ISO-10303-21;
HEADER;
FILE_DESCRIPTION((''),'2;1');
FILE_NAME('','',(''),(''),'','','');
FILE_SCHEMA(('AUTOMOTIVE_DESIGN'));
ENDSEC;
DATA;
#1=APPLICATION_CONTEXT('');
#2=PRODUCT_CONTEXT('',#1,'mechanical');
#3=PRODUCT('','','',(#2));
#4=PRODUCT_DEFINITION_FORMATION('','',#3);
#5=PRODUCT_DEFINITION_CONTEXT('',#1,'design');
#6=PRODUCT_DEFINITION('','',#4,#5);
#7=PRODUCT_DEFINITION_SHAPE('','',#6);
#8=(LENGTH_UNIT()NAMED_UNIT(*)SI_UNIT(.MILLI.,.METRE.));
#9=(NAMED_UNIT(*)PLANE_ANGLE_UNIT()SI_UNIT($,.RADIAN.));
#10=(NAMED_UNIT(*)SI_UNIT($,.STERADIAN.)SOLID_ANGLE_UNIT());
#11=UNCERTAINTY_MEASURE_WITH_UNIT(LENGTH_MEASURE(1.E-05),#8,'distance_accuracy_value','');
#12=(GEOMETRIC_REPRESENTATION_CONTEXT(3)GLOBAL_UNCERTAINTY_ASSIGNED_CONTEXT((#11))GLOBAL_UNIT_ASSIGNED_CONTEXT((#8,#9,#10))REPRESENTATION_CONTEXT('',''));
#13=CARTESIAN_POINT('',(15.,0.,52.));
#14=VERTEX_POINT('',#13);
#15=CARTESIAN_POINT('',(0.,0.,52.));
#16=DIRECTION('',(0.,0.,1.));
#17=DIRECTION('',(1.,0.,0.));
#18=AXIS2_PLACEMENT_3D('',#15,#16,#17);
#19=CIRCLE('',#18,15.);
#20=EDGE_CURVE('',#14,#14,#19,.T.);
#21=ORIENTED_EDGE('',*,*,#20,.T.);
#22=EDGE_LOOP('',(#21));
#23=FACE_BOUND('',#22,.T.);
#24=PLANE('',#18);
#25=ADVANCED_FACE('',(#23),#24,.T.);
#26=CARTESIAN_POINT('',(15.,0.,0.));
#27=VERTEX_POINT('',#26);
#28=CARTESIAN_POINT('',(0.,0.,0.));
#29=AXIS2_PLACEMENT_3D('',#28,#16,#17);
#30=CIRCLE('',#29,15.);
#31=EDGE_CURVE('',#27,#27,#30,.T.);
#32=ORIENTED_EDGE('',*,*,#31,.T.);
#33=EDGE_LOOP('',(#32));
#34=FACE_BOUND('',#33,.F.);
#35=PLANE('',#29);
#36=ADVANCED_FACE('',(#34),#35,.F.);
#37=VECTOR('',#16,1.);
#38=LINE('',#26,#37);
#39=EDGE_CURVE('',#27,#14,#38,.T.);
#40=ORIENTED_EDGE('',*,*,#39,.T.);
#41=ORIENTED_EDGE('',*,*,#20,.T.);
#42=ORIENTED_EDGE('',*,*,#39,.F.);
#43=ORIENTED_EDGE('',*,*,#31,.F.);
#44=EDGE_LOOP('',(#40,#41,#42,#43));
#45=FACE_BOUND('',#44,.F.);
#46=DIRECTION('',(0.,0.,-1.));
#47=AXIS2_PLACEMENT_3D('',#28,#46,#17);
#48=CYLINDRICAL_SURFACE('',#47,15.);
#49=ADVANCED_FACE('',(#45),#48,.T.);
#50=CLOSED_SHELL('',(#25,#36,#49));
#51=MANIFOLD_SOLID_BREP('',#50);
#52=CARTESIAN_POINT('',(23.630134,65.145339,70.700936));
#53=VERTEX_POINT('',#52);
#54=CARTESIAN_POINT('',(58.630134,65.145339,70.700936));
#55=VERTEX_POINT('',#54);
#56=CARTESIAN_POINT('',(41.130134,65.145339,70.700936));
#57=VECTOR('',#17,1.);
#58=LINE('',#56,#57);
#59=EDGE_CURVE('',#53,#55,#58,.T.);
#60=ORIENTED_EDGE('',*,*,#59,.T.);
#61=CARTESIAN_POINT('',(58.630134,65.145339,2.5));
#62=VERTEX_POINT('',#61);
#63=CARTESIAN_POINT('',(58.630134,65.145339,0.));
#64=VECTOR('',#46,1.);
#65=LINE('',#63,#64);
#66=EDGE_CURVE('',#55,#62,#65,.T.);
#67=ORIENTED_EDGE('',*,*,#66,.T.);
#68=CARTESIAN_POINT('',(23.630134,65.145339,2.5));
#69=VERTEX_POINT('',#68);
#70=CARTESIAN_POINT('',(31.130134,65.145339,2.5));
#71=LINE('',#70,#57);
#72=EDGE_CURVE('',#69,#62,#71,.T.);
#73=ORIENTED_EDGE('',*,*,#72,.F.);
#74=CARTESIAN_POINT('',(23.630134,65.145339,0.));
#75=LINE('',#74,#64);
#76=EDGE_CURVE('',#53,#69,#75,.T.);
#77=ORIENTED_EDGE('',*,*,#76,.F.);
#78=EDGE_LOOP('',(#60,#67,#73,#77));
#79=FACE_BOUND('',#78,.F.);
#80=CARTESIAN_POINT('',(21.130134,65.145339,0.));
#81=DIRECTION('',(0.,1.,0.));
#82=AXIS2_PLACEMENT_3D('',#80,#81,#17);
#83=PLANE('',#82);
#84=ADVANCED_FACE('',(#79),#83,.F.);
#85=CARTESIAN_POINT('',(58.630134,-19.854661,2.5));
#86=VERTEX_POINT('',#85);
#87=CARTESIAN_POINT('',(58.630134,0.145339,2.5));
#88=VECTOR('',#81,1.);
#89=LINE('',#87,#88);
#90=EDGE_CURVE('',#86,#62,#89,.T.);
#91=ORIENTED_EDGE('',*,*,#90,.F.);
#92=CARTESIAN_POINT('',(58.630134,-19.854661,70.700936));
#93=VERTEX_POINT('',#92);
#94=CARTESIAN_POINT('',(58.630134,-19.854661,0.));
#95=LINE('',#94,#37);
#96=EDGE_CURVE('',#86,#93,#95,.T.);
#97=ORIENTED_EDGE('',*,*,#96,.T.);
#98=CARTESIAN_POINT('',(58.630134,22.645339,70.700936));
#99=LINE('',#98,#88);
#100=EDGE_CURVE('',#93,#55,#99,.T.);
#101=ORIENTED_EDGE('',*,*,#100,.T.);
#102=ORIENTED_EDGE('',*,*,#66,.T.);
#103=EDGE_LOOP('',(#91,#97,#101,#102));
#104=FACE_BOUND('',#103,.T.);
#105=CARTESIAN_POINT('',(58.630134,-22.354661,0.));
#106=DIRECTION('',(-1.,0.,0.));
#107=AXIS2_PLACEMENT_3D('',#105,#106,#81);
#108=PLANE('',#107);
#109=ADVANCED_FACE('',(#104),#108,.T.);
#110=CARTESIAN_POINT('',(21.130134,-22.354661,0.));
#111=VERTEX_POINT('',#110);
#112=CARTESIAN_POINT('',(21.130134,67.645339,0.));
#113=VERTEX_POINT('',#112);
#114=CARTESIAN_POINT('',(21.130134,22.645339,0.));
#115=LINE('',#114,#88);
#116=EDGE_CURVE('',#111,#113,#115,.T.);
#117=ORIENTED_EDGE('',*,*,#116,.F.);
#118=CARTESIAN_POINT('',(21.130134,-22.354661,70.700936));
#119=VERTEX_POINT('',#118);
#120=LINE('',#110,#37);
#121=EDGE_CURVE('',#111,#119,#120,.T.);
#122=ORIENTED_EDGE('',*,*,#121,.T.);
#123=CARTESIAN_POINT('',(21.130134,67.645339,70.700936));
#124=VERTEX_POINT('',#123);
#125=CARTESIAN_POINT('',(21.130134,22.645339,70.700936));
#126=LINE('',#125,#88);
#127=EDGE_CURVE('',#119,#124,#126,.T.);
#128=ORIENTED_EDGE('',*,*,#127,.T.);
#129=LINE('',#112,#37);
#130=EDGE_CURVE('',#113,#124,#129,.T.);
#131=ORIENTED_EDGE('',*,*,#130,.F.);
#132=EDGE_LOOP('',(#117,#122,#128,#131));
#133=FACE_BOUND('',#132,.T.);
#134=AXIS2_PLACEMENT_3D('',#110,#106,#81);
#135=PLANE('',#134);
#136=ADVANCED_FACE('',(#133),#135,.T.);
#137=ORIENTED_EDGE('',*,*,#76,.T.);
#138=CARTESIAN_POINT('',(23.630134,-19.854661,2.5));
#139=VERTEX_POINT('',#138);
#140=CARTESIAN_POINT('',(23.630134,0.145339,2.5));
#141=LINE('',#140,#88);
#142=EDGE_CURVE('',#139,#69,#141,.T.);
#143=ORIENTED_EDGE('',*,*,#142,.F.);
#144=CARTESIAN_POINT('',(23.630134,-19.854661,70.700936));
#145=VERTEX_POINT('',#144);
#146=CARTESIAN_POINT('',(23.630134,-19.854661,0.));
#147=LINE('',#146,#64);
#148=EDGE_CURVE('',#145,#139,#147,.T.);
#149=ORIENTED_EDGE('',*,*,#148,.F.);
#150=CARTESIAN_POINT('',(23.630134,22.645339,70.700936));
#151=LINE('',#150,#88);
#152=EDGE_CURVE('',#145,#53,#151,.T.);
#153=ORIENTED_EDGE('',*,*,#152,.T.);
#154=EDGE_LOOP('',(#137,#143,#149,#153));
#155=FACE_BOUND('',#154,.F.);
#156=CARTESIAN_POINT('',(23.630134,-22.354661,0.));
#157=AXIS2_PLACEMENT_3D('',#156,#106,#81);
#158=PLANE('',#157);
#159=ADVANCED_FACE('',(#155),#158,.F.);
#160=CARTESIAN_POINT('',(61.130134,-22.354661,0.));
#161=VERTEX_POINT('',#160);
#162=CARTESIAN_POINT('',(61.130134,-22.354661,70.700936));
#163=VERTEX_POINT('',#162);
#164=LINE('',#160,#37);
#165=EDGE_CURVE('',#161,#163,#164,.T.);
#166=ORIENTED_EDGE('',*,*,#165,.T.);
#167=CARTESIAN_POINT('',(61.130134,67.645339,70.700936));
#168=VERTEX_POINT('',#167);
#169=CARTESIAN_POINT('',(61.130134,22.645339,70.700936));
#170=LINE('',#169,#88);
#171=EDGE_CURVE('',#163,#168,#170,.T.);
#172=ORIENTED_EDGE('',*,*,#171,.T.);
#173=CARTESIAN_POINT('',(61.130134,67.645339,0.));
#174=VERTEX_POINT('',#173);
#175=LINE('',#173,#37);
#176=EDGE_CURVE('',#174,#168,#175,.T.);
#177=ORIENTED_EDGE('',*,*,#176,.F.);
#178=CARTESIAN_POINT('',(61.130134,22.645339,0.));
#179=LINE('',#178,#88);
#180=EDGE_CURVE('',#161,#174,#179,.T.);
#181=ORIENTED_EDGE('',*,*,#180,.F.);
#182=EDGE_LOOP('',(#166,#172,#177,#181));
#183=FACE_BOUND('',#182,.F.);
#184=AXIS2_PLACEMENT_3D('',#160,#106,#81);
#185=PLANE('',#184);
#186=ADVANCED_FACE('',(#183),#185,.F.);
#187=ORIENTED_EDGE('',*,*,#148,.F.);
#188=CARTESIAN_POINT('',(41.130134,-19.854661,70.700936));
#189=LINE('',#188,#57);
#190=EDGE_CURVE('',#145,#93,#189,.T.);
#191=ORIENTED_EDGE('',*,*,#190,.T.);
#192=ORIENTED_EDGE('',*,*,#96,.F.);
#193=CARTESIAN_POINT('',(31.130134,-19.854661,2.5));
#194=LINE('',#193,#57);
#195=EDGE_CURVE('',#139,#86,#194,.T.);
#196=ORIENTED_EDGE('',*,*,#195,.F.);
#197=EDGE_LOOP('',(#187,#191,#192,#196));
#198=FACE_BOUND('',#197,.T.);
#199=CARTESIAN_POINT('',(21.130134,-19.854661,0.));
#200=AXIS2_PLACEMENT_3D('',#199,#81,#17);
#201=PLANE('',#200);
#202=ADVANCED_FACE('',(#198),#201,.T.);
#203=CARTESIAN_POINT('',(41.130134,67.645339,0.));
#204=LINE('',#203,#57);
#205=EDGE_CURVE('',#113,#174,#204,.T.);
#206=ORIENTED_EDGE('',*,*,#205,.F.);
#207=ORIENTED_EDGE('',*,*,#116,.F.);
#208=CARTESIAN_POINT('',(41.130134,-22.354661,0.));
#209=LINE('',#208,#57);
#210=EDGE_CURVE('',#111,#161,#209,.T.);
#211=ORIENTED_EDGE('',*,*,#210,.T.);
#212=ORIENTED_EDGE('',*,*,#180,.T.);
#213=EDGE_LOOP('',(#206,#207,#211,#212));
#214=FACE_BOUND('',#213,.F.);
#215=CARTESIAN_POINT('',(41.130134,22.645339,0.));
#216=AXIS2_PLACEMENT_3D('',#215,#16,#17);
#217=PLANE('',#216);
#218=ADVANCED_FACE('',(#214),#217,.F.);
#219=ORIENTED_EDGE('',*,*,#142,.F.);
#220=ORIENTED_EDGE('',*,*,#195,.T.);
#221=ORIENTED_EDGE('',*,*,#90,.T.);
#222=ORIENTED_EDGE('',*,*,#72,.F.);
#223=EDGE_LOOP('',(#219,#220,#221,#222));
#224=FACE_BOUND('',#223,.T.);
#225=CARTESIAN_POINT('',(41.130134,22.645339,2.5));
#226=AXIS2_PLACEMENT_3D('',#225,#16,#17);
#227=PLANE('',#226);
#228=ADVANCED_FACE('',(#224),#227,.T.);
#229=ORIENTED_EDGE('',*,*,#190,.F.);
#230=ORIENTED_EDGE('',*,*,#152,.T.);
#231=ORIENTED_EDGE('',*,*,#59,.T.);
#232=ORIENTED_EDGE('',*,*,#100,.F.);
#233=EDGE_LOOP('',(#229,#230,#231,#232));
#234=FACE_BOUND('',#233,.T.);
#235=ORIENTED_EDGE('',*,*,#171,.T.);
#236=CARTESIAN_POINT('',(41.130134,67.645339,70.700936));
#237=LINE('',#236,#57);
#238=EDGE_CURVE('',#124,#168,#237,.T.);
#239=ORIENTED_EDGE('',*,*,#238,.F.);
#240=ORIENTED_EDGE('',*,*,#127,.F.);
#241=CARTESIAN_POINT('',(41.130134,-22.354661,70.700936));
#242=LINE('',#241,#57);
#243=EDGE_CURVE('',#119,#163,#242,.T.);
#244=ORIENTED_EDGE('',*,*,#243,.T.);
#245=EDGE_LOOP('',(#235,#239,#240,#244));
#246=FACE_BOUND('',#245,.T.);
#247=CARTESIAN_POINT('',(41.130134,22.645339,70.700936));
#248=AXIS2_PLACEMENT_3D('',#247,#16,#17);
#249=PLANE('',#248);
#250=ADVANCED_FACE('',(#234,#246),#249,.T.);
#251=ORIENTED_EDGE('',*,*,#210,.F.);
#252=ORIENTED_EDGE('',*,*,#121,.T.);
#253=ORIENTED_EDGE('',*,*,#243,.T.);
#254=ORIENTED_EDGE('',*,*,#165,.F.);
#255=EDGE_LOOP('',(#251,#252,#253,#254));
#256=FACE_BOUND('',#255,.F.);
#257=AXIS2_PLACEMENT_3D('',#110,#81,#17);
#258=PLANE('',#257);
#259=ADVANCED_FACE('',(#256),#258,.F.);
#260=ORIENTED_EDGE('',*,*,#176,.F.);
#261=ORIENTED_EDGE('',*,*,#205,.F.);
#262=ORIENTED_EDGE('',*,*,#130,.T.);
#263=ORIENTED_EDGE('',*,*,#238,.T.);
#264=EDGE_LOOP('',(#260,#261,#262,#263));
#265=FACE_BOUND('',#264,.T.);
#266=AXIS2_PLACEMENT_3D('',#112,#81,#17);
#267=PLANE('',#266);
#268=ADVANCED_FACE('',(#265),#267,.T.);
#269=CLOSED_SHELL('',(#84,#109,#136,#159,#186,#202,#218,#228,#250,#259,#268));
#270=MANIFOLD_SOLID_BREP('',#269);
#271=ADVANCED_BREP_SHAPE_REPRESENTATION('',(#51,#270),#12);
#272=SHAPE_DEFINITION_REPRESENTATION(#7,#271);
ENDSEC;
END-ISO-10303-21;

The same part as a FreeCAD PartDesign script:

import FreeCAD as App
import Part
import Sketcher
Q = App.Units.Quantity


def faces_at(feature, points):
    """Names of the faces that lie closest to the given points."""
    faces = feature.Shape.Faces
    near = lambda p: min(range(len(faces)), key=lambda i: faces[i].distToShape(Part.Vertex(*p))[0])
    return sorted({f"Face{near(p) + 1}" for p in points})

doc = App.newDocument("Part")
body = doc.addObject("PartDesign::Body", "Body")

# Sketch on XY plane
sketch1 = body.newObject("Sketcher::SketchObject", "Sketch")
sketch1.AttachmentSupport = (doc.getObject("XY_Plane"), [""])
sketch1.MapMode = "FlatFace"
sketch1.addGeometry(Part.Circle(App.Vector(0, 0, 0), App.Vector(0, 0, 1), 15), False)
sketch1.addConstraint(Sketcher.Constraint("Coincident", 0, 3, -1, 1))
sketch1.addConstraint(Sketcher.Constraint("Diameter", 0, Q("30 mm")))
pad1 = body.newObject("PartDesign::Pad", "Pad")
pad1.Profile = sketch1
pad1.Length = 52
body2 = doc.addObject("PartDesign::Body", "Body001")

# Sketch on XY plane
sketch2 = body2.newObject("Sketcher::SketchObject", "Sketch001")
sketch2.AttachmentSupport = (doc.getObject("XY_Plane001"), [""])
sketch2.MapMode = "FlatFace"
sketch2.addGeometry(Part.LineSegment(App.Vector(21, 68, 0), App.Vector(21, -22, 0)), False)
sketch2.addGeometry(Part.LineSegment(App.Vector(21, -22, 0), App.Vector(61, -22, 0)), False)
sketch2.addGeometry(Part.LineSegment(App.Vector(61, -22, 0), App.Vector(61, 68, 0)), False)
sketch2.addGeometry(Part.LineSegment(App.Vector(61, 68, 0), App.Vector(21, 68, 0)), False)
sketch2.addConstraint(Sketcher.Constraint("Coincident", 0, 2, 1, 1))
sketch2.addConstraint(Sketcher.Constraint("Coincident", 1, 2, 2, 1))
sketch2.addConstraint(Sketcher.Constraint("Coincident", 2, 2, 3, 1))
sketch2.addConstraint(Sketcher.Constraint("Coincident", 3, 2, 0, 1))
sketch2.addConstraint(Sketcher.Constraint("Vertical", 0))
sketch2.addConstraint(Sketcher.Constraint("Horizontal", 1))
sketch2.addConstraint(Sketcher.Constraint("Vertical", 2))
sketch2.addConstraint(Sketcher.Constraint("Horizontal", 3))
sketch2.addConstraint(Sketcher.Constraint("DistanceX", 1, 1, 1, 2, Q("40 mm")))
sketch2.addConstraint(Sketcher.Constraint("DistanceY", 0, 2, 0, 1, Q("90 mm")))
sketch2.addConstraint(Sketcher.Constraint("DistanceY", 0, 2, -1, 1, Q("22.354661 mm")))
sketch2.addConstraint(Sketcher.Constraint("DistanceX", -1, 1, 0, 2, Q("21.130134 mm")))
pad2 = body2.newObject("PartDesign::Pad", "Pad001")
pad2.Profile = sketch2
pad2.Length = 70.700936
doc.recompute()

thickness = body2.newObject("PartDesign::Thickness", "Thickness")
thickness.Base = (pad2, faces_at(pad2, [(41.13, 22.645, 70.701)]))
thickness.Value = 2.5
thickness.Reversed = True
thickness.Join = "Arc"

doc.recompute()
